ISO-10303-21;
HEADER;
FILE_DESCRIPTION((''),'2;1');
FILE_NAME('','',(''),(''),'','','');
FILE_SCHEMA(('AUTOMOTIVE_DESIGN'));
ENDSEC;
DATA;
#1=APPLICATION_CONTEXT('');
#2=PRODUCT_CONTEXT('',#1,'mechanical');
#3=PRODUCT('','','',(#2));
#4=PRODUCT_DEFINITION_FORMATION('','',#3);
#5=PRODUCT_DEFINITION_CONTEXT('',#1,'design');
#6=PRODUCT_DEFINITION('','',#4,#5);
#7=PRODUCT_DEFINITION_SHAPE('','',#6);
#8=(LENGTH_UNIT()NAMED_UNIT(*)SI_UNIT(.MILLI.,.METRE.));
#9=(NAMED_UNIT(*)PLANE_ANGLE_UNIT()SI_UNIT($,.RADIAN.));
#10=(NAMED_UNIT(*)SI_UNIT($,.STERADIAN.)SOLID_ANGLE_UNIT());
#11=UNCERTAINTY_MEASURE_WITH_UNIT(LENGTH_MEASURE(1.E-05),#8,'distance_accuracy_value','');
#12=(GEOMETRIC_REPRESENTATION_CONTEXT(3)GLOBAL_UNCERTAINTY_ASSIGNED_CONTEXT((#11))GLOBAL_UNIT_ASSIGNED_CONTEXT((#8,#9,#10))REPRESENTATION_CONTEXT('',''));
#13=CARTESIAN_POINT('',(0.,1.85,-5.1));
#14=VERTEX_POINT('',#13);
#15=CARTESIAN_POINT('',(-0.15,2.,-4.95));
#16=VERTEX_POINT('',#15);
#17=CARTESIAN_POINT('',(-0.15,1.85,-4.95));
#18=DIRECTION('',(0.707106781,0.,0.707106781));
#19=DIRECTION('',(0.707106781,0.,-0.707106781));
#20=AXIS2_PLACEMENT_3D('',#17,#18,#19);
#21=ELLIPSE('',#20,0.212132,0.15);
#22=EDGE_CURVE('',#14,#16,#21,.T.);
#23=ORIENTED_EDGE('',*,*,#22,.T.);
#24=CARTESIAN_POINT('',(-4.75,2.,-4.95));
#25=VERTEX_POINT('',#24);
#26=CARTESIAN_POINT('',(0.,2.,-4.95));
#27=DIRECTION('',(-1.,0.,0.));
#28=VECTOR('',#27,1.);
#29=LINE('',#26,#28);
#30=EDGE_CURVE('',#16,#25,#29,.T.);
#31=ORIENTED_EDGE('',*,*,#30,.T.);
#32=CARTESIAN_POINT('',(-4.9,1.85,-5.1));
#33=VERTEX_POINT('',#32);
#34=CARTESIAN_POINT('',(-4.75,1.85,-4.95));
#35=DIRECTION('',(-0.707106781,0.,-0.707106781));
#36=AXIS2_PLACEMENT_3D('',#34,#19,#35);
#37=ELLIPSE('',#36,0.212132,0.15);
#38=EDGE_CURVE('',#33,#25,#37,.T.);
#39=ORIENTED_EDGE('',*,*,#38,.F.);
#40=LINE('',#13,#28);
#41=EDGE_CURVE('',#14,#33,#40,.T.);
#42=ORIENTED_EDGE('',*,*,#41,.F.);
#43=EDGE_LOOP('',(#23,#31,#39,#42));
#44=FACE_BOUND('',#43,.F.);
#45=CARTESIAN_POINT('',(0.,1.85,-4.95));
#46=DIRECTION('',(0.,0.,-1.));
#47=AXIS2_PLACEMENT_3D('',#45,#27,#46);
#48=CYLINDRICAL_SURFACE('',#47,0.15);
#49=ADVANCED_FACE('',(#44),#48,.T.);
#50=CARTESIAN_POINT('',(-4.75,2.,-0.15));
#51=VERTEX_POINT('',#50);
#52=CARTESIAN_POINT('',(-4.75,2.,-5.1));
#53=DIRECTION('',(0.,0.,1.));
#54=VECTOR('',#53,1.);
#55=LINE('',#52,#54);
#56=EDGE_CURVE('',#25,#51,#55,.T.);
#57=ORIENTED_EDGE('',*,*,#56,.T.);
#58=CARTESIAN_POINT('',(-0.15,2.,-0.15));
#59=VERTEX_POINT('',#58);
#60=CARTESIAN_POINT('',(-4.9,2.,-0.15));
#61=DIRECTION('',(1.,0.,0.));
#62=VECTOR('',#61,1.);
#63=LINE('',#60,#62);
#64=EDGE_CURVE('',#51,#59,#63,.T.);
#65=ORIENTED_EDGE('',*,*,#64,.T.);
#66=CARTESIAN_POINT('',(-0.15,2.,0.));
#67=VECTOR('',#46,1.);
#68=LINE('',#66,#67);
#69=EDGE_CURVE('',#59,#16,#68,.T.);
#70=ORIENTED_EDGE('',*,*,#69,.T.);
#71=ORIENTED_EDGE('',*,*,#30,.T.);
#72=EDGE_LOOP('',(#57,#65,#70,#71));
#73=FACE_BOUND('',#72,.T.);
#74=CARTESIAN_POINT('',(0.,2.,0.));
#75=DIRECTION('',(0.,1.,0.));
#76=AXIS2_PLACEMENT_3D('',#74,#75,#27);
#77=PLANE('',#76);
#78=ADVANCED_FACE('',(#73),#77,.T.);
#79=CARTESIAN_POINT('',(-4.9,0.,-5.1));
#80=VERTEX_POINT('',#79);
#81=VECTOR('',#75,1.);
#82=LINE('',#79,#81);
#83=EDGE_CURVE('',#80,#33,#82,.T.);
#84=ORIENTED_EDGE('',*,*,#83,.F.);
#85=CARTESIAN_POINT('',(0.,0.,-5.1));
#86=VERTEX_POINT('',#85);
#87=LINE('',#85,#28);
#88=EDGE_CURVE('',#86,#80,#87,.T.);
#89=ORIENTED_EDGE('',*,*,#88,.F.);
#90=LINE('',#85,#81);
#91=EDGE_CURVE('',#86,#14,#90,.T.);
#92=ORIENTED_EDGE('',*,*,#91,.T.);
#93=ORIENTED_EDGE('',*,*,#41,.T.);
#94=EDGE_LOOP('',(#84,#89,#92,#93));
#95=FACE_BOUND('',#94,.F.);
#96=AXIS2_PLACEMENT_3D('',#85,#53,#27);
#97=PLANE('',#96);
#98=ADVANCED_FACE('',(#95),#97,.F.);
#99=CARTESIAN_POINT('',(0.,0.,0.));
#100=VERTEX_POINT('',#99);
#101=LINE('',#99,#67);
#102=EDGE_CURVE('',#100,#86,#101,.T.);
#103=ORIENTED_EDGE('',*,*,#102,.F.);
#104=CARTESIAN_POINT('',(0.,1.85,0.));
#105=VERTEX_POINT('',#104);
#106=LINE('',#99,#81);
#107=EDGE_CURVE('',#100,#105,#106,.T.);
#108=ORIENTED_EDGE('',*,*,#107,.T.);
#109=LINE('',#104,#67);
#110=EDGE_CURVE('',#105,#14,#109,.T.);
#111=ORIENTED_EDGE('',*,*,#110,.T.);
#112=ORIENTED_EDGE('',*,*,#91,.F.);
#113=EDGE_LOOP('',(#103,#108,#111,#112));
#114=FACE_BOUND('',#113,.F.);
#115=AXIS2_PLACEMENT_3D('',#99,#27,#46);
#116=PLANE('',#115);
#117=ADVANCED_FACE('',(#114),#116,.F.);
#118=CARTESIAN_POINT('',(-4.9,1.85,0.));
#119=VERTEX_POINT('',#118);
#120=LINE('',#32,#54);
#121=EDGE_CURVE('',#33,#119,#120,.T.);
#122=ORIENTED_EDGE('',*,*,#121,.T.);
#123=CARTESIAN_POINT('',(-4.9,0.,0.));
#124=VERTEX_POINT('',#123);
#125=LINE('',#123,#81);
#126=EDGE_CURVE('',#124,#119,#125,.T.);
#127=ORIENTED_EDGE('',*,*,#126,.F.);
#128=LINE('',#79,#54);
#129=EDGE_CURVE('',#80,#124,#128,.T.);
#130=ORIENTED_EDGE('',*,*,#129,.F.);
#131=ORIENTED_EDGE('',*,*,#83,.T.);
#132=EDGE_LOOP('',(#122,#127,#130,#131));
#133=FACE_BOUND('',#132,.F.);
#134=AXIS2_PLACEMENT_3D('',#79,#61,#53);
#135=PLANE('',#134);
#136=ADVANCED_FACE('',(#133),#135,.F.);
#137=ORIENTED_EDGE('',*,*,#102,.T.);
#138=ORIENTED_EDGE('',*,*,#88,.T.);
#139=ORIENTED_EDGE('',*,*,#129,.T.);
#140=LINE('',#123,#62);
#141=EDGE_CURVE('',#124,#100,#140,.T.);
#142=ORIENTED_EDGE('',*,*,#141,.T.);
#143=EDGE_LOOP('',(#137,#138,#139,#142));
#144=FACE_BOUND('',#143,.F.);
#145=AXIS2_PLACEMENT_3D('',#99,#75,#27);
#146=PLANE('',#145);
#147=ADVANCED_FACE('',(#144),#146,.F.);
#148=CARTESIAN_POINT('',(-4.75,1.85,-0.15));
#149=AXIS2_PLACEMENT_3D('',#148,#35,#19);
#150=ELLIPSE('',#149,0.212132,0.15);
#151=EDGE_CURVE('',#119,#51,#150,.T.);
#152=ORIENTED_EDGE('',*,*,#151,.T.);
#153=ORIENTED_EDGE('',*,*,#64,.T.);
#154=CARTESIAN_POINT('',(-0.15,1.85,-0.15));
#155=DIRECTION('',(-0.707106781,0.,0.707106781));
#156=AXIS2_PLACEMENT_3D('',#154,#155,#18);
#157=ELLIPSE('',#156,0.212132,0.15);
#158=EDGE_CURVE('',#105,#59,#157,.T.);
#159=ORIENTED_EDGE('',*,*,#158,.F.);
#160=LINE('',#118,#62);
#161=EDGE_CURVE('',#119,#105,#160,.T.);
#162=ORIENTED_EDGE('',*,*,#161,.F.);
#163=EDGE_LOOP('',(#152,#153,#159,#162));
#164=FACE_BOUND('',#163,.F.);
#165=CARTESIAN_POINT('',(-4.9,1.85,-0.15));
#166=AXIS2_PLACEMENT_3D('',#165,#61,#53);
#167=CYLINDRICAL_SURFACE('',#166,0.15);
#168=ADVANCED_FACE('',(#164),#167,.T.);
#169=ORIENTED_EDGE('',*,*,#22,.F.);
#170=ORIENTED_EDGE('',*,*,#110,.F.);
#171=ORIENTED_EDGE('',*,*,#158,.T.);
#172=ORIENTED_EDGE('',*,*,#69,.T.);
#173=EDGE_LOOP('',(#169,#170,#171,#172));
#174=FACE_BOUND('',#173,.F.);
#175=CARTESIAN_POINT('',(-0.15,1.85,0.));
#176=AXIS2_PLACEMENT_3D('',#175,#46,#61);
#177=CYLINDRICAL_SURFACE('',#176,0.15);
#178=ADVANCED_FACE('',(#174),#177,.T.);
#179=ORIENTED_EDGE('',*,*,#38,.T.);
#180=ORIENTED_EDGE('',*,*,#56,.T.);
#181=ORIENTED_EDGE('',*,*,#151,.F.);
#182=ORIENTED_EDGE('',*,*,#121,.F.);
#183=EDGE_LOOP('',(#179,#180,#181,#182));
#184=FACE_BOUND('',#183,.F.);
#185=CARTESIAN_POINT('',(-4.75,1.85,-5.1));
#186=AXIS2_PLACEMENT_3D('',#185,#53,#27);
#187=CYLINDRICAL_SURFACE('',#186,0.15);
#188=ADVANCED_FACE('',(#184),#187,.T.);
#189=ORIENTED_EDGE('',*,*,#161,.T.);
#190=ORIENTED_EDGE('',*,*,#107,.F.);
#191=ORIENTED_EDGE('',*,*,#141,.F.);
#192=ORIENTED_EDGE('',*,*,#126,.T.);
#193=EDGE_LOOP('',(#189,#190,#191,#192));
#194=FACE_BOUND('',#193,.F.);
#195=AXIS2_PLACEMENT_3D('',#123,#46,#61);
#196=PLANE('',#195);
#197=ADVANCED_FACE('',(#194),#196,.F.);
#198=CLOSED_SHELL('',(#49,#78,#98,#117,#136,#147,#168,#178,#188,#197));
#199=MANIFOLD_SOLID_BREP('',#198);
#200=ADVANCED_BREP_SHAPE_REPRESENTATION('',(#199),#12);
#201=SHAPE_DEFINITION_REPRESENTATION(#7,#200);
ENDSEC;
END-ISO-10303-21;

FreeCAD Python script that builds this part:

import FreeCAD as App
import Part
import Sketcher

V = App.Vector


def edges_at(feature, points):
    """Names of the edges that pass closest to the given points."""
    edges = feature.Shape.Edges
    near = lambda p: min(range(len(edges)), key=lambda i: edges[i].distToShape(Part.Vertex(*p))[0])
    return sorted({f"Edge{near(p) + 1}" for p in points})


def add_polygon(sketch, points):
    """Adds a closed chain of lines whose ends are joined by coincident constraints."""
    first, n = sketch.GeometryCount, len(points)
    for a, b in zip(points, points[1:] + points[:1]):
        sketch.addGeometry(Part.LineSegment(App.Vector(*a, 0), App.Vector(*b, 0)), False)
    for i in range(n):
        sketch.addConstraint(Sketcher.Constraint("Coincident", first + i, 2, first + (i + 1) % n, 1))

doc = App.newDocument("Part")
body = doc.addObject("PartDesign::Body", "Body")

sketch1 = doc.addObject("Sketcher::SketchObject", "Sketch")
body.addObject(sketch1)
sketch1.AttachmentSupport = (doc.XZ_Plane, [""])
sketch1.MapMode = "FlatFace"
add_polygon(sketch1, [(-4.9, 0), (0, 0), (0, -5.1), (-4.9, -5.1)])
sketch1.addConstraint(Sketcher.Constraint("Horizontal", 0))
sketch1.addConstraint(Sketcher.Constraint("Vertical", 1))
sketch1.addConstraint(Sketcher.Constraint("Horizontal", 2))
sketch1.addConstraint(Sketcher.Constraint("Vertical", 3))
sketch1.addConstraint(Sketcher.Constraint("Coincident", 0, 2, -1, 1))
sketch1.addConstraint(Sketcher.Constraint("DistanceX", 0, 1, 0, 2, 4.9))
sketch1.addConstraint(Sketcher.Constraint("DistanceY", 1, 2, 1, 1, 5.1))
pad1 = doc.addObject("PartDesign::Pad", "Pad")
body.addObject(pad1)
pad1.Profile = sketch1
pad1.Length = 2
pad1.Reversed = True
doc.recompute()

fillet = doc.addObject("PartDesign::Fillet", "Fillet")
body.addObject(fillet)
fillet.Base = (pad1, edges_at(pad1, [
    (-2.45, 2, 0),
    (0, 2, -2.55),
    (-2.45, 2, -5.1),
    (-4.9, 2, -2.55),
]))
fillet.Radius = 0.15

doc.recompute()
